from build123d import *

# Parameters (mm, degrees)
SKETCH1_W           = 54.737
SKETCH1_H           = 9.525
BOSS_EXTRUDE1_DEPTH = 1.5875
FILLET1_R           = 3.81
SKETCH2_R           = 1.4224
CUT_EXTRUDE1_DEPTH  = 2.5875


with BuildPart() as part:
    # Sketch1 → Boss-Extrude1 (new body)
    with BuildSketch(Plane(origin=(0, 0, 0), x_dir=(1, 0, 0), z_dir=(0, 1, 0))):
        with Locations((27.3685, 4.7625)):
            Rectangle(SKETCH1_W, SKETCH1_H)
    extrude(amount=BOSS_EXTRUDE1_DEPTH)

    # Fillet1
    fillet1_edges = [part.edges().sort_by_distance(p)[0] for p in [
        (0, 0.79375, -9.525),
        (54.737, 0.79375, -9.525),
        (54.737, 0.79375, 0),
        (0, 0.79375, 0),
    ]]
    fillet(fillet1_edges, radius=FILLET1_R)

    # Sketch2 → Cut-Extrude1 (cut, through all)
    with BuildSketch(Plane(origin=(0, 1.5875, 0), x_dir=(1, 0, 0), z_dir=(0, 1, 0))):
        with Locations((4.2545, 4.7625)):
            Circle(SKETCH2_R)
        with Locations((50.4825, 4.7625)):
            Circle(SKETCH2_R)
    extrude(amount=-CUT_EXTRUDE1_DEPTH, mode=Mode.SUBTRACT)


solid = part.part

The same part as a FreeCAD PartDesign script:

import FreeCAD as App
import Part
import Sketcher
from FreeCAD import Vector
Q = App.Units.Quantity


def edges_at(feature, points):
    """Names of the edges that pass closest to the given points."""
    edges = feature.Shape.Edges
    near = lambda p: min(range(len(edges)), key=lambda i: edges[i].distToShape(Part.Vertex(*p))[0])
    return sorted({f"Edge{near(p) + 1}" for p in points})

doc = App.newDocument("Part")
body = doc.addObject("PartDesign::Body", "Body")

# Sketch on XZ plane
sketch1 = body.newObject("Sketcher::SketchObject", "Sketch")
sketch1.AttachmentSupport = (doc.getObject("XZ_Plane"), [""])
sketch1.MapMode = "FlatFace"
sketch1.addGeometry(Part.LineSegment(Vector(0, -10, 0), Vector(0, 0, 0)), False)
sketch1.addGeometry(Part.LineSegment(Vector(0, 0, 0), Vector(55, 0, 0)), False)
sketch1.addGeometry(Part.LineSegment(Vector(55, 0, 0), Vector(55, -10, 0)), False)
sketch1.addGeometry(Part.LineSegment(Vector(55, -10, 0), Vector(0, -10, 0)), False)
sketch1.addConstraint(Sketcher.Constraint("Coincident", 0, 2, 1, 1))
sketch1.addConstraint(Sketcher.Constraint("Coincident", 1, 2, 2, 1))
sketch1.addConstraint(Sketcher.Constraint("Coincident", 2, 2, 3, 1))
sketch1.addConstraint(Sketcher.Constraint("Coincident", 3, 2, 0, 1))
sketch1.addConstraint(Sketcher.Constraint("Vertical", 0))
sketch1.addConstraint(Sketcher.Constraint("Horizontal", 1))
sketch1.addConstraint(Sketcher.Constraint("Vertical", 2))
sketch1.addConstraint(Sketcher.Constraint("Horizontal", 3))
sketch1.addConstraint(Sketcher.Constraint("Coincident", 0, 2, -1, 1))
sketch1.addConstraint(Sketcher.Constraint("DistanceX", 1, 1, 1, 2, Q("2.155 in")))
sketch1.addConstraint(Sketcher.Constraint("DistanceY", 0, 1, 0, 2, Q("0.375 in")))
pad1 = body.newObject("PartDesign::Pad", "Pad")
pad1.Profile = sketch1
pad1.Length = Q("0.0625 in")
pad1.Reversed = True
doc.recompute()

fillet = body.newObject("PartDesign::Fillet", "Fillet")
fillet.Base = (pad1, edges_at(pad1, [
    (0, 0.794, -9.525),
    (54.737, 0.794, -9.525),
    (54.737, 0.794, 0),
    (0, 0.794, 0),
]))
fillet.Radius = Q("0.15 in")

# Sketch on XZ plane
sketch2 = body.newObject("Sketcher::SketchObject", "Sketch001")
sketch2.AttachmentSupport = (doc.getObject("XZ_Plane"), [""])
sketch2.MapMode = "FlatFace"
sketch2.AttachmentOffset = App.Placement(Vector(0, 0, -0.0625 * 25.4), App.Rotation())
sketch2.addGeometry(Part.Circle(Vector(4.3, -4.8, 0), Vector(0, 0, 1), 1.4), False)
sketch2.addGeometry(Part.Circle(Vector(50.5, -4.8, 0), Vector(0, 0, 1), 1.4), False)
sketch2.addConstraint(Sketcher.Constraint("Equal", 0, 1))
sketch2.addConstraint(Sketcher.Constraint("Horizontal", 0, 3, 1, 3))
sketch2.addConstraint(Sketcher.Constraint("Diameter", 0, Q("0.112 in")))
sketch2.addConstraint(Sketcher.Constraint("DistanceX", 0, 3, 1, 3, Q("1.82 in")))
sketch2.addConstraint(Sketcher.Constraint("DistanceY", 0, 3, -1, 1, Q("0.1875 in")))
sketch2.addConstraint(Sketcher.Constraint("DistanceX", -1, 1, 0, 3, Q("0.1675 in")))
pocket1 = body.newObject("PartDesign::Pocket", "Pocket")
pocket1.Profile = sketch2
pocket1.Type = "ThroughAll"
pocket1.Reversed = True

doc.recompute()
